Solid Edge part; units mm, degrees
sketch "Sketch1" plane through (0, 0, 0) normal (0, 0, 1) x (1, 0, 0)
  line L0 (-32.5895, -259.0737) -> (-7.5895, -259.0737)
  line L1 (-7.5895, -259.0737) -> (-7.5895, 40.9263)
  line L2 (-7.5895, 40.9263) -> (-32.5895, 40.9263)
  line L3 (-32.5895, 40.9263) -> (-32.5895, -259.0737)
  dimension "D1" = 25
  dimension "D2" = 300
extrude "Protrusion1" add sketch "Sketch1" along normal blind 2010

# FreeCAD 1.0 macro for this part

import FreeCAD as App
import Part
import Sketcher

V = App.Vector
Q = App.Units.Quantity

doc = App.newDocument("Part")
body = doc.addObject("PartDesign::Body", "Body")

# Sketch on XY plane
sketch1 = body.newObject("Sketcher::SketchObject", "Sketch")
sketch1.AttachmentSupport = (doc.getObject("XY_Plane"), [""])
sketch1.MapMode = "FlatFace"
sketch1.addGeometry([
    Part.LineSegment(V(-33, 41, 0), V(-33, -259, 0)),
    Part.LineSegment(V(-33, -259, 0), V(-8, -259, 0)),
    Part.LineSegment(V(-8, -259, 0), V(-8, 41, 0)),
    Part.LineSegment(V(-8, 41, 0), V(-33, 41, 0)),
], False)
sketch1.addConstraint([
    Sketcher.Constraint("Coincident", 0, 2, 1, 1),
    Sketcher.Constraint("Coincident", 1, 2, 2, 1),
    Sketcher.Constraint("Coincident", 2, 2, 3, 1),
    Sketcher.Constraint("Coincident", 3, 2, 0, 1),
    Sketcher.Constraint("Vertical", 0),
    Sketcher.Constraint("Horizontal", 1),
    Sketcher.Constraint("Vertical", 2),
    Sketcher.Constraint("Horizontal", 3),
    Sketcher.Constraint("DistanceX", 1, 1, 1, 2, Q("25 mm")),
    Sketcher.Constraint("DistanceY", 0, 2, 0, 1, Q("300 mm")),
    Sketcher.Constraint("DistanceX", 0, 2, -1, 1, Q("32.5895 mm")),
    Sketcher.Constraint("DistanceY", 0, 2, -1, 1, Q("259.0737 mm")),
])
pad1 = body.newObject("PartDesign::Pad", "Pad")
pad1.Profile = sketch1
pad1.Length = 2010

doc.recompute()
